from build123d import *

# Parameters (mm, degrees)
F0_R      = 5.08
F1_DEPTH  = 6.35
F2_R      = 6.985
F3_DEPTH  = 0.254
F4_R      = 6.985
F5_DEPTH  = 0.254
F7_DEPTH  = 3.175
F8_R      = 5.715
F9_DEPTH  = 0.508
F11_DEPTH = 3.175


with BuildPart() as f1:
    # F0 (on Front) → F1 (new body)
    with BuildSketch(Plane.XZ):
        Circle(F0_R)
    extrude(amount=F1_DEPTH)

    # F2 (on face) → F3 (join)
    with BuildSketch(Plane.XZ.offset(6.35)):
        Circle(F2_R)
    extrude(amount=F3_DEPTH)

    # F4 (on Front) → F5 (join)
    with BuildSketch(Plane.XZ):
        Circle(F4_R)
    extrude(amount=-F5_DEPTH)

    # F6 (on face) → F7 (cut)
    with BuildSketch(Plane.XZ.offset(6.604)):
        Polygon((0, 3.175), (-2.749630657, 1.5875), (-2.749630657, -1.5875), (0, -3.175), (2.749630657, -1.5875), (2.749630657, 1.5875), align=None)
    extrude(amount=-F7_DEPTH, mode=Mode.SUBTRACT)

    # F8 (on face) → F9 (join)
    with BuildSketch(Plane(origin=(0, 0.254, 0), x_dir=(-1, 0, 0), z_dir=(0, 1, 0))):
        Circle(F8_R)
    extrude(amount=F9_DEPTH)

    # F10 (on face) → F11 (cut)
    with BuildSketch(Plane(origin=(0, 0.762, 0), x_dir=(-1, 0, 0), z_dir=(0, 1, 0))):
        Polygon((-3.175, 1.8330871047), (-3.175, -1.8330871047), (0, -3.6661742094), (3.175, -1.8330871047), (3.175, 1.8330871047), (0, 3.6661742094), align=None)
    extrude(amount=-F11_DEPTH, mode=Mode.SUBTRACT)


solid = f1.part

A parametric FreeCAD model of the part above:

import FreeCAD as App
import Part
import Sketcher
Q = App.Units.Quantity


def add_polygon(sketch, points):
    """Adds a closed chain of lines whose ends are joined by coincident constraints."""
    first, n = sketch.GeometryCount, len(points)
    for a, b in zip(points, points[1:] + points[:1]):
        sketch.addGeometry(Part.LineSegment(App.Vector(*a, 0), App.Vector(*b, 0)), False)
    for i in range(n):
        sketch.addConstraint(Sketcher.Constraint("Coincident", first + i, 2, first + (i + 1) % n, 1))

doc = App.newDocument("Part")
params = doc.addObject("Spreadsheet::Sheet", "Params")
for row, (alias, value) in enumerate([
    ("sketch1_diameter", "0.4 in"),
    ("pad1_length", "0.25 in"),
    ("sketch2_diameter", "0.55 in"),
    ("pad2_length", "0.01 in"),
    ("sketch3_diameter", "0.55 in"),
    ("pad3_length", "0.01 in"),
    ("sketch4_height", "0.125 in"),
    ("pocket1_length", "0.125 in"),
    ("sketch5_diameter", "0.45 in"),
    ("pad4_length", "0.02 in"),
    ("pocket2_length", "0.125 in"),
], start=1):
    params.set(f"A{row}", alias)
    params.set(f"B{row}", "=" + value)
    params.setAlias(f"B{row}", alias)

body = doc.addObject("PartDesign::Body", "Body")

sketch1 = body.newObject("Sketcher::SketchObject", "Sketch")
sketch1.AttachmentSupport = (doc.getObject("XZ_Plane"), [""])
sketch1.MapMode = "FlatFace"
sketch1.addGeometry(Part.Circle(App.Vector(0, 0, 0), App.Vector(0, 0, 1), 5.08), False)
sketch1.addConstraint(Sketcher.Constraint("Coincident", 0, 3, -1, 1))
sketch1.addConstraint(Sketcher.Constraint("Diameter", 0, Q("0.4 in")))
sketch1.setExpression("Constraints[1]", "Params.sketch1_diameter")
pad1 = body.newObject("PartDesign::Pad", "Pad")
pad1.Profile = sketch1
pad1.setExpression("Length", "Params.pad1_length")

sketch2 = body.newObject("Sketcher::SketchObject", "Sketch001")
sketch2.AttachmentSupport = (doc.getObject("XZ_Plane"), [""])
sketch2.MapMode = "FlatFace"
sketch2.AttachmentOffset = App.Placement(App.Vector(0, 0, 0.25 * 25.4), App.Rotation())
sketch2.addGeometry(Part.Circle(App.Vector(0, 0, 0), App.Vector(0, 0, 1), 6.985), False)
sketch2.addConstraint(Sketcher.Constraint("Coincident", 0, 3, -1, 1))
sketch2.addConstraint(Sketcher.Constraint("Diameter", 0, Q("0.55 in")))
sketch2.setExpression("Constraints[1]", "Params.sketch2_diameter")
pad2 = body.newObject("PartDesign::Pad", "Pad001")
pad2.Profile = sketch2
pad2.setExpression("Length", "Params.pad2_length")

sketch3 = body.newObject("Sketcher::SketchObject", "Sketch002")
sketch3.AttachmentSupport = (doc.getObject("XZ_Plane"), [""])
sketch3.MapMode = "FlatFace"
sketch3.addGeometry(Part.Circle(App.Vector(0, 0, 0), App.Vector(0, 0, 1), 6.985), False)
sketch3.addConstraint(Sketcher.Constraint("Coincident", 0, 3, -1, 1))
sketch3.addConstraint(Sketcher.Constraint("Diameter", 0, Q("0.55 in")))
sketch3.setExpression("Constraints[1]", "Params.sketch3_diameter")
pad3 = body.newObject("PartDesign::Pad", "Pad002")
pad3.Profile = sketch3
pad3.setExpression("Length", "Params.pad3_length")
pad3.Reversed = True

sketch4 = body.newObject("Sketcher::SketchObject", "Sketch003")
sketch4.AttachmentSupport = (doc.getObject("XZ_Plane"), [""])
sketch4.MapMode = "FlatFace"
sketch4.AttachmentOffset = App.Placement(App.Vector(0, 0, 0.26 * 25.4), App.Rotation())
add_polygon(sketch4, [(0, 3.175), (-2.749631, 1.5875), (-2.749631, -1.5875), (0, -3.175), (2.749631, -1.5875), (2.749631, 1.5875)])
sketch4.addConstraint(Sketcher.Constraint("Vertical", 1))
sketch4.addConstraint(Sketcher.Constraint("Vertical", 4))
sketch4.addConstraint(Sketcher.Constraint("Symmetric", 0, 2, 3, 2, -1, 1))
sketch4.addConstraint(Sketcher.Constraint("Symmetric", 2, 2, 5, 2, -1, 1))
sketch4.addConstraint(Sketcher.Constraint("PointOnObject", 2, 2, -2))
sketch4.addConstraint(Sketcher.Constraint("Parallel", 2, 5))
sketch4.addConstraint(Sketcher.Constraint("Horizontal", 1, 2, 3, 2))
sketch4.addConstraint(Sketcher.Constraint("Angle", 0, Q("-150 deg")))
sketch4.addConstraint(Sketcher.Constraint("DistanceY", 1, 2, 1, 1, Q("0.125 in")))
sketch4.addConstraint(Sketcher.Constraint("DistanceY", 2, 2, 5, 2, Q("0.25 in")))
sketch4.setExpression("Constraints[14]", "Params.sketch4_height")
pocket1 = body.newObject("PartDesign::Pocket", "Pocket")
pocket1.Profile = sketch4
pocket1.setExpression("Length", "Params.pocket1_length")

sketch5 = body.newObject("Sketcher::SketchObject", "Sketch004")
sketch5.AttachmentSupport = (doc.getObject("XZ_Plane"), [""])
sketch5.MapMode = "FlatFace"
sketch5.AttachmentOffset = App.Placement(App.Vector(0, 0, -0.01 * 25.4), App.Rotation())
sketch5.addGeometry(Part.Circle(App.Vector(0, 0, 0), App.Vector(0, 0, 1), 5.715), False)
sketch5.addConstraint(Sketcher.Constraint("Coincident", 0, 3, -1, 1))
sketch5.addConstraint(Sketcher.Constraint("Diameter", 0, Q("0.45 in")))
sketch5.setExpression("Constraints[1]", "Params.sketch5_diameter")
pad4 = body.newObject("PartDesign::Pad", "Pad003")
pad4.Profile = sketch5
pad4.setExpression("Length", "Params.pad4_length")
pad4.Reversed = True

sketch6 = body.newObject("Sketcher::SketchObject", "Sketch005")
sketch6.AttachmentSupport = (doc.getObject("XZ_Plane"), [""])
sketch6.MapMode = "FlatFace"
sketch6.AttachmentOffset = App.Placement(App.Vector(0, 0, -0.03 * 25.4), App.Rotation())
add_polygon(sketch6, [(3.175, 1.833087), (3.175, -1.833087), (0, -3.666174), (-3.175, -1.833087), (-3.175, 1.833087), (0, 3.666174)])
sketch6.addConstraint(Sketcher.Constraint("Vertical", 0))
sketch6.addConstraint(Sketcher.Constraint("Vertical", 3))
sketch6.addConstraint(Sketcher.Constraint("Symmetric", 0, 2, 3, 2, -1, 1))
sketch6.addConstraint(Sketcher.Constraint("Symmetric", 1, 2, 4, 2, -1, 1))
sketch6.addConstraint(Sketcher.Constraint("PointOnObject", 1, 2, -2))
sketch6.addConstraint(Sketcher.Constraint("Parallel", 2, 5))
sketch6.addConstraint(Sketcher.Constraint("Horizontal", 0, 2, 2, 2))
sketch6.addConstraint(Sketcher.Constraint("Angle", 1, Q("-150 deg")))
sketch6.addConstraint(Sketcher.Constraint("DistanceX", 2, 2, 0, 2, Q("0.25 in")))
sketch6.addConstraint(Sketcher.Constraint("DistanceY", 0, 2, 0, 1, 3.666174))
pocket2 = body.newObject("PartDesign::Pocket", "Pocket001")
pocket2.Profile = sketch6
pocket2.setExpression("Length", "Params.pocket2_length")
pocket2.Reversed = True

doc.recompute()
